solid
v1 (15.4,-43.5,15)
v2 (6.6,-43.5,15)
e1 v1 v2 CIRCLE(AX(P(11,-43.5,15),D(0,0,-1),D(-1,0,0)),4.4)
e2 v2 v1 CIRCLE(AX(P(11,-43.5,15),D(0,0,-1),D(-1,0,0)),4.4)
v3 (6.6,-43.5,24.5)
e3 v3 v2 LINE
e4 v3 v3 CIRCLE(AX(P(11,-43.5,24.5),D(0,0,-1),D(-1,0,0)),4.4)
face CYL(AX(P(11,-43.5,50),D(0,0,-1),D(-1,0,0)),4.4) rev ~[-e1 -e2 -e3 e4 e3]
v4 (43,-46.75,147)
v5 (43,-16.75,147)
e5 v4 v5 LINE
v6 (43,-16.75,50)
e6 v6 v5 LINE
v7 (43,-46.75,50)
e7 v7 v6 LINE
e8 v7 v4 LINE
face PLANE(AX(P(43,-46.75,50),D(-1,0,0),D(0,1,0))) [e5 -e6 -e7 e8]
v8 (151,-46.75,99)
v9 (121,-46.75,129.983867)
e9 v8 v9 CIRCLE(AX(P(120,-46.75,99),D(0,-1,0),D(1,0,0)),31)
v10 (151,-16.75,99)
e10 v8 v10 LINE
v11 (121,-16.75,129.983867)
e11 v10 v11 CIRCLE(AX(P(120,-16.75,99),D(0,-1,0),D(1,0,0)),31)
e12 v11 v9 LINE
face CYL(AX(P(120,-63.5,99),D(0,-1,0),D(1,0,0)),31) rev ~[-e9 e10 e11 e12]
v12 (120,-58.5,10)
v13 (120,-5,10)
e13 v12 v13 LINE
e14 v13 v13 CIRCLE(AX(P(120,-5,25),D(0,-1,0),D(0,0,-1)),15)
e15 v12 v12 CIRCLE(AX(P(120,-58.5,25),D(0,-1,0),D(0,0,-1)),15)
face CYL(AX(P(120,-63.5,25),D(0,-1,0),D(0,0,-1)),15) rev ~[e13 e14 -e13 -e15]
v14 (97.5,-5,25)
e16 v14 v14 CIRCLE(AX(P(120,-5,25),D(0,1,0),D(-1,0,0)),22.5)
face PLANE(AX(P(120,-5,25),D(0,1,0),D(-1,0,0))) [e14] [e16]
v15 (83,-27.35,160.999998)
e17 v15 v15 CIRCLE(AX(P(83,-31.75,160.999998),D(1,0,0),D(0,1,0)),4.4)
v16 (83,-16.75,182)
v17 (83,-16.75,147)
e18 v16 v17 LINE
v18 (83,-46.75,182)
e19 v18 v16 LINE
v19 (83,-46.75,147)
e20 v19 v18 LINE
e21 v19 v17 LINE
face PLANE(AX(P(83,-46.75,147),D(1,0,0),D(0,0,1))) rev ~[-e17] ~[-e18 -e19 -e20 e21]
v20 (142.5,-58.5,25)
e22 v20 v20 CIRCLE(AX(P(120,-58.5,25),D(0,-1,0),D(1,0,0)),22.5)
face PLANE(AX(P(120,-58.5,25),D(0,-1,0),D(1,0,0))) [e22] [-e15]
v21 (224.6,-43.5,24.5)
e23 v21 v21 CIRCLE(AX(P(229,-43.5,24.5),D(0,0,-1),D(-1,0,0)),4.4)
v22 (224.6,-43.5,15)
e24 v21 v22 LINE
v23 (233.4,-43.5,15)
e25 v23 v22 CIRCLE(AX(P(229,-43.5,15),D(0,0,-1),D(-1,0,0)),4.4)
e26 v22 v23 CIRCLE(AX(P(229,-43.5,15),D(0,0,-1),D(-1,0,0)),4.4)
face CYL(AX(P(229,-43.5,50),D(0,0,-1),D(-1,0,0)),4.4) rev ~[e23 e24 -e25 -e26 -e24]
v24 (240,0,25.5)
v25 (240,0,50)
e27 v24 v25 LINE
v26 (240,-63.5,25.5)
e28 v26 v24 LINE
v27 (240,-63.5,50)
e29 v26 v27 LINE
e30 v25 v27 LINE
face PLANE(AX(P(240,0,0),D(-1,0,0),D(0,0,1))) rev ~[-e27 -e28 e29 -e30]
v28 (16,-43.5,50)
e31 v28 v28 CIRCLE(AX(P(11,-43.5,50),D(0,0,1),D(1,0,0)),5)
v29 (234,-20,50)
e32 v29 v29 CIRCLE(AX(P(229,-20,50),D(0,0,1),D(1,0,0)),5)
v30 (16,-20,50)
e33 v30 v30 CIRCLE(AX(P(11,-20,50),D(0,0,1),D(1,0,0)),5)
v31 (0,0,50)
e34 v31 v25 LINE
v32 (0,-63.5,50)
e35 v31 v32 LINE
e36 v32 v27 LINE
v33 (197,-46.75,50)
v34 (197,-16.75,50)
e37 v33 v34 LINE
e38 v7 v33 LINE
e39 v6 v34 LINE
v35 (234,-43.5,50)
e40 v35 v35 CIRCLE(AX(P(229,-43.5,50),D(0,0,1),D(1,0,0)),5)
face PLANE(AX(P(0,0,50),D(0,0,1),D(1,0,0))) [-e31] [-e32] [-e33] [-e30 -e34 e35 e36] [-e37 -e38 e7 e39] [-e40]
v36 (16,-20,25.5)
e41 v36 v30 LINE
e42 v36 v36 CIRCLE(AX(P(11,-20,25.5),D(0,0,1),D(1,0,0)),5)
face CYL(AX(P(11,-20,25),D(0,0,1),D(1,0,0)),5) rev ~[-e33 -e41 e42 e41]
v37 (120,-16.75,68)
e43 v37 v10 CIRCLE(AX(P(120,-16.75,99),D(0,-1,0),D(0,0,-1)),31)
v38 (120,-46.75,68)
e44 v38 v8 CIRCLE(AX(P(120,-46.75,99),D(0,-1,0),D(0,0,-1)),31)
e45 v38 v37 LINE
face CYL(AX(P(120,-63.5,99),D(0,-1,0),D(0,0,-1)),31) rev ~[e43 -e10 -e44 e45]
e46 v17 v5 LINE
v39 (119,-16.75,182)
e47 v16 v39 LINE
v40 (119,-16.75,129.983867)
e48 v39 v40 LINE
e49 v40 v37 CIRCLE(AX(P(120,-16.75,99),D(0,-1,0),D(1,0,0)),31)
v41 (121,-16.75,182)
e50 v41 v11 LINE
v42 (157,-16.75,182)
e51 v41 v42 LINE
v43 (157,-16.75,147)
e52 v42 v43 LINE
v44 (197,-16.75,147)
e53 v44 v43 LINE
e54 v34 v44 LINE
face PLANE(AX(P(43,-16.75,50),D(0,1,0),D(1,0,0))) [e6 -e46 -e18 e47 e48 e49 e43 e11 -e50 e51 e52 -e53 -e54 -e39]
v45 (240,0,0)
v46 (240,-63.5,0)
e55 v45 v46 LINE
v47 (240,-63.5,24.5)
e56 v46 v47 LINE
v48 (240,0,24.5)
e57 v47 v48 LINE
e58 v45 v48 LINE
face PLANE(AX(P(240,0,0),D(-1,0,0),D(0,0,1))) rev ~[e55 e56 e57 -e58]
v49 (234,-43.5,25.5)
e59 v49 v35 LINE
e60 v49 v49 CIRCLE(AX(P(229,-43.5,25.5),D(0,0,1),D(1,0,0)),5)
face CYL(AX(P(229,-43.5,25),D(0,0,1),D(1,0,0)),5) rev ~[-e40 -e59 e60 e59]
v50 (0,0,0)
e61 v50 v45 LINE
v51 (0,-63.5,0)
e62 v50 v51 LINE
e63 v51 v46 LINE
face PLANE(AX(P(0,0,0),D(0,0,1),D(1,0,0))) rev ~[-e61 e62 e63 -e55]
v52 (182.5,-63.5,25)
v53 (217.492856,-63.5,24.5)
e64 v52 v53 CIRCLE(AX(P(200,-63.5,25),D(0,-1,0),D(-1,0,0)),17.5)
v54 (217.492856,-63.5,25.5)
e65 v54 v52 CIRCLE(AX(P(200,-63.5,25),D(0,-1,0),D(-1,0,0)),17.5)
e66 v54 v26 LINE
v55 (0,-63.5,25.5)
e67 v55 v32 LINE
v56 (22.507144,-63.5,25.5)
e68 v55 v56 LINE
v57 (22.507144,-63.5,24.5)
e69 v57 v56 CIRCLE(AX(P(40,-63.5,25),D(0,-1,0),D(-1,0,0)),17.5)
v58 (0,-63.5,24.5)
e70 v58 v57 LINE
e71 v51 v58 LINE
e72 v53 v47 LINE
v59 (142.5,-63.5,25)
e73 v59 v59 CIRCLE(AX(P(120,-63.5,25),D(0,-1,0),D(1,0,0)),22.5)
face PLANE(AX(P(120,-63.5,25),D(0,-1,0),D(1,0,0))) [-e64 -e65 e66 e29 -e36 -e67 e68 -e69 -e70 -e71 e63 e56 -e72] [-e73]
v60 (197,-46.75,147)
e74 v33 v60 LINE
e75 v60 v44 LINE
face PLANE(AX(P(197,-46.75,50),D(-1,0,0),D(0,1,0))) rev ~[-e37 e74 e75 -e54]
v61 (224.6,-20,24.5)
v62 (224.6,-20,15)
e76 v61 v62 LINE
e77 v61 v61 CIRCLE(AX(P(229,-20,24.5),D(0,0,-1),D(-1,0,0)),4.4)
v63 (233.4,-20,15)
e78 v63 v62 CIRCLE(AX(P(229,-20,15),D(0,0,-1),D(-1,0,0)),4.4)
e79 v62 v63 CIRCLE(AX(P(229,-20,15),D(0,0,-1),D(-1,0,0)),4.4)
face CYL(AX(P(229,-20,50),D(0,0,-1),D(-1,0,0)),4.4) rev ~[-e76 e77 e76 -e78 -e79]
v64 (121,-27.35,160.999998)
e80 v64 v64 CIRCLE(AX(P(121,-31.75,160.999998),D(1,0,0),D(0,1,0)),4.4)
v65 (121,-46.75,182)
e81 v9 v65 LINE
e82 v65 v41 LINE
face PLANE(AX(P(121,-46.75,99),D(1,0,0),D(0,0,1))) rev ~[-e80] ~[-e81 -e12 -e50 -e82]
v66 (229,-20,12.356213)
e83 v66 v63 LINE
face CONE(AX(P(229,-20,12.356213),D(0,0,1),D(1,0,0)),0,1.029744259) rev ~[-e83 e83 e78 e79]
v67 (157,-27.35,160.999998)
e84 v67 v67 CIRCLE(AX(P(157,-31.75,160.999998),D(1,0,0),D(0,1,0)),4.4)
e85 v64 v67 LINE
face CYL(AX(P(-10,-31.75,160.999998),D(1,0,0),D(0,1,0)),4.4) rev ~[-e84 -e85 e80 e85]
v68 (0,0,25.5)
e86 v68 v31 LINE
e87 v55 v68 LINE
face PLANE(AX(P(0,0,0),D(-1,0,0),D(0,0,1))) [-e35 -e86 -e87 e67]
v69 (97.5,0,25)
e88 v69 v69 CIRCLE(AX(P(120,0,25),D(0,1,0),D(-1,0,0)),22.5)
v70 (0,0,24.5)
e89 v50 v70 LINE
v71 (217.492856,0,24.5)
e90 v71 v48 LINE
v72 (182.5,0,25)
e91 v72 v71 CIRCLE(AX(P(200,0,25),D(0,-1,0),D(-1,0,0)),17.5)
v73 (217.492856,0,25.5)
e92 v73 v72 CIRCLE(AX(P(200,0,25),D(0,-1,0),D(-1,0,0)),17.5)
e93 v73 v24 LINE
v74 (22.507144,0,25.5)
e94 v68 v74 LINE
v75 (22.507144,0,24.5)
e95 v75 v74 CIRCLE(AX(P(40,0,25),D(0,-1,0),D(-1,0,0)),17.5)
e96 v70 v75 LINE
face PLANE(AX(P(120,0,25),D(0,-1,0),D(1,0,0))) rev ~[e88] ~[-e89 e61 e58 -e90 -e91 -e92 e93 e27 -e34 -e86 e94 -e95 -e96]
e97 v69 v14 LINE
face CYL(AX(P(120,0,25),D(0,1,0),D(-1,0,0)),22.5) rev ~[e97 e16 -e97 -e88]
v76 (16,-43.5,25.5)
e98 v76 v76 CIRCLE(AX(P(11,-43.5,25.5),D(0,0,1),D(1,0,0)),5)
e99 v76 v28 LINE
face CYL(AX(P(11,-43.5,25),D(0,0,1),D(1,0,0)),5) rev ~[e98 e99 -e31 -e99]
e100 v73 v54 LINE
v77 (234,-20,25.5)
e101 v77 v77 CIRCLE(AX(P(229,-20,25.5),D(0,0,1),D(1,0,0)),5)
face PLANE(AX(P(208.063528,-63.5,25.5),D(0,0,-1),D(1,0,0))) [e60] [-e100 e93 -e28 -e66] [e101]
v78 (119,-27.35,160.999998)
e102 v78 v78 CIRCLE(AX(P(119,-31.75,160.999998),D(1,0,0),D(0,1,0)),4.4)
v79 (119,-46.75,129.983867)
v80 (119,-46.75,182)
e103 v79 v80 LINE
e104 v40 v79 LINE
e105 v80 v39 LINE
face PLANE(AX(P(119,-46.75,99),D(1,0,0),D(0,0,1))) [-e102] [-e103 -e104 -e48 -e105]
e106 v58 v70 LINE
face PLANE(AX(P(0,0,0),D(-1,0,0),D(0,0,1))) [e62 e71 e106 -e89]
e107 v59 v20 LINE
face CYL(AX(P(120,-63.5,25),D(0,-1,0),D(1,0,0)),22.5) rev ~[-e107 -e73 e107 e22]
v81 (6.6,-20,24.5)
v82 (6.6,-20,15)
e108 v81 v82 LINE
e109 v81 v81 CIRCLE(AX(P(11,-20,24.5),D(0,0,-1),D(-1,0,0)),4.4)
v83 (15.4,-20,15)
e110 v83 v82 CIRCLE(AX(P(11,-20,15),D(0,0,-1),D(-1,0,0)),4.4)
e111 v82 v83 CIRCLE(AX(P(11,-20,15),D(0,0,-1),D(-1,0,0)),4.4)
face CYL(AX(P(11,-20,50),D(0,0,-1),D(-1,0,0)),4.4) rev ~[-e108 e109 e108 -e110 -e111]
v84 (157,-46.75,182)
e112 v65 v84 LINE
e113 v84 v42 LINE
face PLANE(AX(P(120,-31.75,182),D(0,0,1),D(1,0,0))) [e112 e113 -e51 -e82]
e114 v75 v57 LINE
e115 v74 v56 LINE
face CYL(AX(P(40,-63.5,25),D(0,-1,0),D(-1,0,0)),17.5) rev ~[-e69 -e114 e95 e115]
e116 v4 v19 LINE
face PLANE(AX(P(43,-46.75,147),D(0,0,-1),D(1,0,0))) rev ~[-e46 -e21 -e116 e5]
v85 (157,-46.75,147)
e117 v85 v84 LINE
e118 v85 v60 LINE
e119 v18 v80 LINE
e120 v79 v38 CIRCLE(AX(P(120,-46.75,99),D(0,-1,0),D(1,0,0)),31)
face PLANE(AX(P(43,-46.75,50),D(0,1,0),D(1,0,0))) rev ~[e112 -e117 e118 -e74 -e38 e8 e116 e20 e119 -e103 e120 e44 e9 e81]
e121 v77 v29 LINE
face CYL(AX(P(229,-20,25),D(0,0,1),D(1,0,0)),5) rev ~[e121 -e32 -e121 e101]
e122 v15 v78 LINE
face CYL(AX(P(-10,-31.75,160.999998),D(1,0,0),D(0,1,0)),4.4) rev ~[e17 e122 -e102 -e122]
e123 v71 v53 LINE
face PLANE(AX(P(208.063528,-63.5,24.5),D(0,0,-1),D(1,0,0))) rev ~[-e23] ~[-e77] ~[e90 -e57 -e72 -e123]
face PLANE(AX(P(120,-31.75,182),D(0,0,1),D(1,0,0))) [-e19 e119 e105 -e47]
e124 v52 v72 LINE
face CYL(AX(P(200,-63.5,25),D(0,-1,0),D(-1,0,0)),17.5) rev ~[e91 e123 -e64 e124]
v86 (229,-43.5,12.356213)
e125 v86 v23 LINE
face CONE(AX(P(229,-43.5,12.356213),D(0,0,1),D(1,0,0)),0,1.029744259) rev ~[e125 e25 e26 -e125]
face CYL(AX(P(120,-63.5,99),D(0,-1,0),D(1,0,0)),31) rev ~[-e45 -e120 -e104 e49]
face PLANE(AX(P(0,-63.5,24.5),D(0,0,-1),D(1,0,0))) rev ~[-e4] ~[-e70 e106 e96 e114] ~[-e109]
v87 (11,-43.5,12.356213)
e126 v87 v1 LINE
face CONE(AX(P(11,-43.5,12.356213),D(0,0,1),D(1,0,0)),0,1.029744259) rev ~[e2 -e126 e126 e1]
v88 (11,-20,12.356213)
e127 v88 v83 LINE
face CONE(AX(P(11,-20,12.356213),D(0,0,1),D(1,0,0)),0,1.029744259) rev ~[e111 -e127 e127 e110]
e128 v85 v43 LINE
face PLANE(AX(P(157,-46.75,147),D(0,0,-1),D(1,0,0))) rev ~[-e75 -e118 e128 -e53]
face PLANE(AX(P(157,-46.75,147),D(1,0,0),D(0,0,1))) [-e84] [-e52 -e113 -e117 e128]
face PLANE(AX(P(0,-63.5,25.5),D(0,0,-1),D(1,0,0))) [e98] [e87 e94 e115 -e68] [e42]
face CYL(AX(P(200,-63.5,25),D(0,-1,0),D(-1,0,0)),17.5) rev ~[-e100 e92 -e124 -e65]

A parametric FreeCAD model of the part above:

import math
import FreeCAD as App
import Part
import Sketcher
Q = App.Units.Quantity


def add_polygon(sketch, points):
    """Adds a closed chain of lines whose ends are joined by coincident constraints."""
    first, n = sketch.GeometryCount, len(points)
    for a, b in zip(points, points[1:] + points[:1]):
        sketch.addGeometry(Part.LineSegment(App.Vector(*a, 0), App.Vector(*b, 0)), False)
    for i in range(n):
        sketch.addConstraint(Sketcher.Constraint("Coincident", first + i, 2, first + (i + 1) % n, 1))

doc = App.newDocument("Part")
body = doc.addObject("PartDesign::Body", "Body")

# Sketch on XZ plane
sketch1 = body.newObject("Sketcher::SketchObject", "Sketch")
sketch1.AttachmentSupport = (doc.getObject("XZ_Plane"), [""])
sketch1.MapMode = "FlatFace"
add_polygon(sketch1, [(0, 50), (0, 0), (240, 0), (240, 50)])  # lines 0-3
sketch1.addConstraint([
    Sketcher.Constraint("Vertical", 0),
    Sketcher.Constraint("Horizontal", 1),
    Sketcher.Constraint("Vertical", 2),
    Sketcher.Constraint("Horizontal", 3),
    Sketcher.Constraint("Coincident", 0, 2, -1, 1),
    Sketcher.Constraint("DistanceX", 1, 1, 1, 2, Q("240 mm")),
    Sketcher.Constraint("DistanceY", 0, 2, 0, 1, Q("50 mm")),
])
pad1 = body.newObject("PartDesign::Pad", "Pad")
pad1.Profile = sketch1
pad1.Length = 63.5

# Sketch on XZ plane
sketch2 = body.newObject("Sketcher::SketchObject", "Sketch001")
sketch2.AttachmentSupport = (doc.getObject("XZ_Plane"), [""])
sketch2.MapMode = "FlatFace"
sketch2.AttachmentOffset = App.Placement(App.Vector(0, 0, 63.5), App.Rotation())
sketch2.addGeometry([
    Part.Circle(App.Vector(40, 25, 0), App.Vector(0, 0, 1), 18),
    Part.Circle(App.Vector(200, 25, 0), App.Vector(0, 0, 1), 18),
    Part.Circle(App.Vector(120, 25, 0), App.Vector(0, 0, 1), 15),
], False)
sketch2.addConstraint([
    Sketcher.Constraint("Equal", 0, 1),
    Sketcher.Constraint("Horizontal", 0, 3, 1, 3),
    Sketcher.Constraint("Horizontal", 1, 3, 2, 3),
    Sketcher.Constraint("Diameter", 0, Q("35 mm")),
    Sketcher.Constraint("Diameter", 2, Q("30 mm")),
    Sketcher.Constraint("DistanceX", -1, 1, 0, 3, Q("40 mm")),
    Sketcher.Constraint("DistanceY", -1, 1, 0, 3, Q("25 mm")),
    Sketcher.Constraint("DistanceX", -1, 1, 1, 3, Q("200 mm")),
    Sketcher.Constraint("DistanceX", -1, 1, 2, 3, Q("120 mm")),
])
pocket1 = body.newObject("PartDesign::Pocket", "Pocket")
pocket1.Profile = sketch2
pocket1.Type = "ThroughAll"

# Sketch on XZ plane
sketch3 = body.newObject("Sketcher::SketchObject", "Sketch002")
sketch3.AttachmentSupport = (doc.getObject("XZ_Plane"), [""])
sketch3.MapMode = "FlatFace"
sketch3.AttachmentOffset = App.Placement(App.Vector(0, 0, 63.5), App.Rotation())
sketch3.addGeometry(Part.Circle(App.Vector(120, 25, 0), App.Vector(0, 0, 1), 22), False)
sketch3.addConstraint([
    Sketcher.Constraint("Diameter", 0, Q("45 mm")),
    Sketcher.Constraint("DistanceX", -1, 1, 0, 3, Q("120 mm")),
    Sketcher.Constraint("DistanceY", -1, 1, 0, 3, Q("25 mm")),
])
pocket2 = body.newObject("PartDesign::Pocket", "Pocket001")
pocket2.Profile = sketch3
pocket2.Length = 5

# Sketch on XZ plane
sketch4 = body.newObject("Sketcher::SketchObject", "Sketch003")
sketch4.AttachmentSupport = (doc.getObject("XZ_Plane"), [""])
sketch4.MapMode = "FlatFace"
sketch4.addGeometry(Part.Circle(App.Vector(120, 25, 0), App.Vector(0, 0, 1), 22), False)
sketch4.addConstraint([
    Sketcher.Constraint("Diameter", 0, Q("45 mm")),
    Sketcher.Constraint("DistanceX", -1, 1, 0, 3, Q("120 mm")),
    Sketcher.Constraint("DistanceY", -1, 1, 0, 3, Q("25 mm")),
])
pocket3 = body.newObject("PartDesign::Pocket", "Pocket002")
pocket3.Profile = sketch4
pocket3.Length = 5
pocket3.Reversed = True

# Sketch on XZ plane
sketch5 = body.newObject("Sketcher::SketchObject", "Sketch004")
sketch5.AttachmentSupport = (doc.getObject("XZ_Plane"), [""])
sketch5.MapMode = "FlatFace"
sketch5.AttachmentOffset = App.Placement(App.Vector(0, 0, 63.5), App.Rotation())
add_polygon(sketch5, [(0, 25.5), (0, 24.5), (33.5, 24.5), (33.5, 25.5)])  # lines 0-3
add_polygon(sketch5, [(208.1, 24.5), (240, 24.5), (240, 25.5), (208.1, 25.5)])  # lines 4-7
sketch5.addConstraint([
    Sketcher.Constraint("Vertical", 0),
    Sketcher.Constraint("Horizontal", 1),
    Sketcher.Constraint("Vertical", 2),
    Sketcher.Constraint("Horizontal", 3),
    Sketcher.Constraint("Horizontal", 4),
    Sketcher.Constraint("Vertical", 5),
    Sketcher.Constraint("Horizontal", 6),
    Sketcher.Constraint("Vertical", 7),
    Sketcher.Constraint("PointOnObject", 0, 2, -2),
    Sketcher.Constraint("Horizontal", 1, 2, 4, 2),
    Sketcher.Constraint("Horizontal", 3, 2, 5, 2),
    Sketcher.Constraint("DistanceY", 0, 2, 0, 1, Q("1 mm")),
    Sketcher.Constraint("DistanceX", -1, 1, 4, 2, Q("240 mm")),
    Sketcher.Constraint("DistanceY", -1, 1, 0, 2, Q("24.5 mm")),
    Sketcher.Constraint("DistanceX", 1, 1, 1, 2, Q("33.464387 mm")),
    Sketcher.Constraint("DistanceX", 4, 1, 4, 2, Q("31.936472 mm")),
])
pocket4 = body.newObject("PartDesign::Pocket", "Pocket003")
pocket4.Profile = sketch5
pocket4.Type = "ThroughAll"

# Sketch on XY plane
sketch6 = body.newObject("Sketcher::SketchObject", "Sketch005")
sketch6.AttachmentSupport = (doc.getObject("XY_Plane"), [""])
sketch6.MapMode = "FlatFace"
sketch6.AttachmentOffset = App.Placement(App.Vector(0, 0, 50), App.Rotation())
sketch6.addGeometry([
    Part.Circle(App.Vector(11, -20, 0), App.Vector(0, 0, 1), 4.4),
    Part.Circle(App.Vector(11, -43.5, 0), App.Vector(0, 0, 1), 4.4),
    Part.Circle(App.Vector(229, -20, 0), App.Vector(0, 0, 1), 4.4),
    Part.Circle(App.Vector(229, -43.5, 0), App.Vector(0, 0, 1), 4.4),
], False)
sketch6.addConstraint([
    Sketcher.Constraint("Equal", 0, 1),
    Sketcher.Constraint("Equal", 1, 2),
    Sketcher.Constraint("Equal", 2, 3),
    Sketcher.Constraint("Horizontal", 0, 3, 2, 3),
    Sketcher.Constraint("Horizontal", 1, 3, 3, 3),
    Sketcher.Constraint("Vertical", 0, 3, 1, 3),
    Sketcher.Constraint("Vertical", 2, 3, 3, 3),
    Sketcher.Constraint("Diameter", 0, Q("8.8 mm")),
    Sketcher.Constraint("DistanceX", -1, 1, 0, 3, Q("11 mm")),
    Sketcher.Constraint("DistanceY", 0, 3, -1, 1, Q("20 mm")),
    Sketcher.Constraint("DistanceX", -1, 1, 2, 3, Q("229 mm")),
    Sketcher.Constraint("DistanceY", 1, 3, -1, 1, Q("43.5 mm")),
])
doc.recompute()
hole = body.newObject("PartDesign::Hole", "Hole")
hole.Profile = sketch6
hole.ThreadType = "None"
hole.Diameter = 8.8
hole.DepthType = "Dimension"
hole.Depth = 35
hole.DrillPoint = "Angled"
hole.DrillPointAngle = 118
hole.HoleCutType = "Counterbore"
hole.HoleCutDiameter = 10
hole.HoleCutDepth = 25

# Sketch on XY plane
sketch7 = body.newObject("Sketcher::SketchObject", "Sketch006")
sketch7.AttachmentSupport = (doc.getObject("XY_Plane"), [""])
sketch7.MapMode = "FlatFace"
sketch7.AttachmentOffset = App.Placement(App.Vector(0, 0, 50), App.Rotation())
add_polygon(sketch7, [(43, -17), (43, -47), (197, -47), (197, -17)])  # lines 0-3
sketch7.addConstraint([
    Sketcher.Constraint("Vertical", 0),
    Sketcher.Constraint("Horizontal", 1),
    Sketcher.Constraint("Vertical", 2),
    Sketcher.Constraint("Horizontal", 3),
    Sketcher.Constraint("DistanceX", 1, 1, 1, 2, Q("154 mm")),
    Sketcher.Constraint("DistanceY", 0, 2, 0, 1, Q("30 mm")),
    Sketcher.Constraint("DistanceX", -1, 1, 0, 2, Q("43 mm")),
    Sketcher.Constraint("DistanceY", 0, 2, -1, 1, Q("46.75 mm")),
])
pad2 = body.newObject("PartDesign::Pad", "Pad001")
pad2.Profile = sketch7
pad2.Length = 132

# Sketch on XZ plane
sketch8 = body.newObject("Sketcher::SketchObject", "Sketch007")
sketch8.AttachmentSupport = (doc.getObject("XZ_Plane"), [""])
sketch8.MapMode = "FlatFace"
sketch8.AttachmentOffset = App.Placement(App.Vector(0, 0, 63.5), App.Rotation())
sketch8.addGeometry([
    Part.ArcOfCircle(Part.Circle(App.Vector(120, 99, 0), App.Vector(0, 0, 1), 31), math.radians(-90), math.radians(0)),
    Part.ArcOfCircle(Part.Circle(App.Vector(120, 99, 0), App.Vector(0, 0, 1), 31), math.radians(0), math.radians(270)),
], False)
sketch8.addConstraint([
    Sketcher.Constraint("Tangent", 0, 1, 1, 2),
    Sketcher.Constraint("Coincident", 1, 1, 0, 2),
    Sketcher.Constraint("Horizontal", 0, 3, 1, 1),
    Sketcher.Constraint("Vertical", 1, 3, 0, 1),
    Sketcher.Constraint("Radius", 0, Q("31 mm")),
    Sketcher.Constraint("DistanceX", -1, 1, 0, 3, Q("120 mm")),
    Sketcher.Constraint("DistanceY", -1, 1, 0, 3, Q("99 mm")),
])
pocket5 = body.newObject("PartDesign::Pocket", "Pocket004")
pocket5.Profile = sketch8
pocket5.Type = "ThroughAll"

# Sketch on XZ plane
sketch9 = body.newObject("Sketcher::SketchObject", "Sketch008")
sketch9.AttachmentSupport = (doc.getObject("XZ_Plane"), [""])
sketch9.MapMode = "FlatFace"
sketch9.AttachmentOffset = App.Placement(App.Vector(0, 0, 46.75), App.Rotation())
add_polygon(sketch9, [(119, 204), (119, 99), (121, 99), (121, 204)])  # lines 0-3
sketch9.addConstraint([
    Sketcher.Constraint("Vertical", 0),
    Sketcher.Constraint("Horizontal", 1),
    Sketcher.Constraint("Vertical", 2),
    Sketcher.Constraint("Horizontal", 3),
    Sketcher.Constraint("DistanceX", 1, 1, 1, 2, Q("2 mm")),
    Sketcher.Constraint("DistanceX", -1, 1, 0, 2, Q("119 mm")),
    Sketcher.Constraint("DistanceY", -1, 1, 0, 2, Q("99 mm")),
    Sketcher.Constraint("DistanceY", 0, 2, 0, 1, Q("104.974 mm")),
])
pocket6 = body.newObject("PartDesign::Pocket", "Pocket005")
pocket6.Profile = sketch9
pocket6.Type = "ThroughAll"

# Sketch on XZ plane
sketch10 = body.newObject("Sketcher::SketchObject", "Sketch009")
sketch10.AttachmentSupport = (doc.getObject("XZ_Plane"), [""])
sketch10.MapMode = "FlatFace"
sketch10.AttachmentOffset = App.Placement(App.Vector(0, 0, 46.75), App.Rotation())
add_polygon(sketch10, [(43, 182), (43, 147), (83, 147), (83, 182)])  # lines 0-3
add_polygon(sketch10, [(157, 182), (157, 147), (197, 147), (197, 182)])  # lines 4-7
sketch10.addConstraint([
    Sketcher.Constraint("Vertical", 0),
    Sketcher.Constraint("Horizontal", 1),
    Sketcher.Constraint("Vertical", 2),
    Sketcher.Constraint("Horizontal", 3),
    Sketcher.Constraint("Vertical", 4),
    Sketcher.Constraint("Horizontal", 5),
    Sketcher.Constraint("Vertical", 6),
    Sketcher.Constraint("Horizontal", 7),
    Sketcher.Constraint("Horizontal", 1, 2, 4, 2),
    Sketcher.Constraint("Horizontal", 3, 2, 6, 2),
    Sketcher.Constraint("Equal", 3, 5),
    Sketcher.Constraint("DistanceX", 1, 1, 1, 2, Q("40 mm")),
    Sketcher.Constraint("DistanceY", 0, 2, 0, 1, Q("35 mm")),
    Sketcher.Constraint("DistanceX", -1, 1, 0, 2, Q("43 mm")),
    Sketcher.Constraint("DistanceY", -1, 1, 0, 2, Q("147 mm")),
    Sketcher.Constraint("DistanceX", -1, 1, 4, 2, Q("157 mm")),
])
pocket7 = body.newObject("PartDesign::Pocket", "Pocket006")
pocket7.Profile = sketch10
pocket7.Type = "ThroughAll"

# Sketch on YZ plane
sketch11 = body.newObject("Sketcher::SketchObject", "Sketch010")
sketch11.AttachmentSupport = (doc.getObject("YZ_Plane"), [""])
sketch11.MapMode = "FlatFace"
sketch11.AttachmentOffset = App.Placement(App.Vector(0, 0, 83), App.Rotation())
sketch11.addGeometry(Part.Circle(App.Vector(-31.8, 161, 0), App.Vector(0, 0, 1), 4.4), False)
sketch11.addConstraint([
    Sketcher.Constraint("Diameter", 0, Q("8.8 mm")),
    Sketcher.Constraint("DistanceY", -1, 1, 0, 3, Q("160.999998 mm")),
    Sketcher.Constraint("DistanceX", 0, 3, -1, 1, Q("31.75 mm")),
])
doc.recompute()
hole2 = body.newObject("PartDesign::Hole", "Hole001")
hole2.Profile = sketch11
hole2.ThreadType = "None"
hole2.Diameter = 8.8
hole2.DepthType = "Dimension"
hole2.Depth = 93
hole2.DrillPoint = "Angled"
hole2.DrillPointAngle = 118
hole2.Reversed = True

doc.recompute()
